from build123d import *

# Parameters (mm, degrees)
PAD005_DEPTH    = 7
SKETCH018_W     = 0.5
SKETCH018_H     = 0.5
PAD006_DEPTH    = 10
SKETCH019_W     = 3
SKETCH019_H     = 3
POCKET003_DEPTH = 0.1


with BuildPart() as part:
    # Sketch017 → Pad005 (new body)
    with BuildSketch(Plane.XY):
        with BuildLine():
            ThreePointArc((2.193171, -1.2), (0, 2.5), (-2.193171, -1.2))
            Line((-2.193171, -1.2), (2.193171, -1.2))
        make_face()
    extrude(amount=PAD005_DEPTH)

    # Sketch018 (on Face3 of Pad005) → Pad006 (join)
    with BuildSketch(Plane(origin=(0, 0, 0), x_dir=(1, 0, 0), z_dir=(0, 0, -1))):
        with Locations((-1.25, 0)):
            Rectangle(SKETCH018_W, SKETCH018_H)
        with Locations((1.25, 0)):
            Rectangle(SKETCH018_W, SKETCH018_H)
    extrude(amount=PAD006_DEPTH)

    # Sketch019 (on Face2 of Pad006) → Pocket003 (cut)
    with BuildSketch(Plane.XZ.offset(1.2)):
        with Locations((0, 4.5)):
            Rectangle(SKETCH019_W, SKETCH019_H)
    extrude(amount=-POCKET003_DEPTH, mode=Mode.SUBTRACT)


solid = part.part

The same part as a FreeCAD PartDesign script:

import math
import FreeCAD as App
import Part
import Sketcher
from FreeCAD import Vector


def add_polygon(sketch, points):
    """Adds a closed chain of lines whose ends are joined by coincident constraints."""
    first, n = sketch.GeometryCount, len(points)
    for a, b in zip(points, points[1:] + points[:1]):
        sketch.addGeometry(Part.LineSegment(App.Vector(*a, 0), App.Vector(*b, 0)), False)
    for i in range(n):
        sketch.addConstraint(Sketcher.Constraint("Coincident", first + i, 2, first + (i + 1) % n, 1))

doc = App.newDocument("Part")
body = doc.addObject("PartDesign::Body", "Body")

# Sketch on XY plane
sketch1 = body.newObject("Sketcher::SketchObject", "Sketch")
sketch1.AttachmentSupport = (doc.getObject("XY_Plane"), [""])
sketch1.MapMode = "FlatFace"
sketch1.addGeometry([
    Part.ArcOfCircle(Part.Circle(Vector(0, 0, 0), Vector(0, 0, 1), 2.5), math.radians(-28.685407), math.radians(208.685407)),
    Part.LineSegment(Vector(-2.193171, -1.2, 0), Vector(2.193171, -1.2, 0)),
], False)
sketch1.addConstraint([
    Sketcher.Constraint("Coincident", 0, 1, 1, 2),
    Sketcher.Constraint("Coincident", 1, 1, 0, 2),
    Sketcher.Constraint("Horizontal", 1),
    Sketcher.Constraint("Coincident", 0, 3, -1, 1),
    Sketcher.Constraint("Radius", 0, 2.5),
    Sketcher.Constraint("DistanceY", 0, 1, -1, 1, 1.2),
])
pad1 = body.newObject("PartDesign::Pad", "Pad")
pad1.Profile = sketch1
pad1.Length = 7

# Sketch on XY plane
sketch2 = body.newObject("Sketcher::SketchObject", "Sketch001")
sketch2.AttachmentSupport = (doc.getObject("XY_Plane"), [""])
sketch2.MapMode = "FlatFace"
add_polygon(sketch2, [(-1.5, -0.25), (-1.5, 0.25), (-1, 0.25), (-1, -0.25)])  # lines 0-3
add_polygon(sketch2, [(1, -0.25), (1, 0.25), (1.5, 0.25), (1.5, -0.25)])  # lines 4-7
sketch2.addConstraint([
    Sketcher.Constraint("Vertical", 0),
    Sketcher.Constraint("Horizontal", 1),
    Sketcher.Constraint("Vertical", 2),
    Sketcher.Constraint("Horizontal", 3),
    Sketcher.Constraint("Vertical", 4),
    Sketcher.Constraint("Horizontal", 5),
    Sketcher.Constraint("Vertical", 6),
    Sketcher.Constraint("Horizontal", 7),
    Sketcher.Constraint("Symmetric", 2, 2, 4, 2, -1, 1),
    Sketcher.Constraint("Symmetric", 0, 2, 6, 2, -1, 1),
    Sketcher.Constraint("Horizontal", 1, 2, 4, 2),
    Sketcher.Constraint("Equal", 7, 0),
    Sketcher.Constraint("DistanceX", 1, 1, 1, 2, 0.5),
    Sketcher.Constraint("DistanceX", 1, 2, -1, 1, 1.0),
])
pad2 = body.newObject("PartDesign::Pad", "Pad001")
pad2.Profile = sketch2
pad2.Length = 10
pad2.Reversed = True

# Sketch on XZ plane
sketch3 = body.newObject("Sketcher::SketchObject", "Sketch002")
sketch3.AttachmentSupport = (doc.getObject("XZ_Plane"), [""])
sketch3.MapMode = "FlatFace"
sketch3.AttachmentOffset = App.Placement(Vector(0, 0, 1.2), App.Rotation())
add_polygon(sketch3, [(-1.5, 6), (-1.5, 3), (1.5, 3), (1.5, 6)])  # lines 0-3
sketch3.addConstraint([
    Sketcher.Constraint("Vertical", 0),
    Sketcher.Constraint("Horizontal", 1),
    Sketcher.Constraint("Vertical", 2),
    Sketcher.Constraint("Horizontal", 3),
    Sketcher.Constraint("Equal", 3, 0),
    Sketcher.Constraint("DistanceX", 1, 1, 1, 2, 3.0),
    Sketcher.Constraint("DistanceY", -1, 1, 0, 2, 3.0),
    Sketcher.Constraint("DistanceX", 0, 2, -1, 1, 1.5),
])
pocket1 = body.newObject("PartDesign::Pocket", "Pocket")
pocket1.Profile = sketch3
pocket1.Length = 0.1

doc.recompute()
